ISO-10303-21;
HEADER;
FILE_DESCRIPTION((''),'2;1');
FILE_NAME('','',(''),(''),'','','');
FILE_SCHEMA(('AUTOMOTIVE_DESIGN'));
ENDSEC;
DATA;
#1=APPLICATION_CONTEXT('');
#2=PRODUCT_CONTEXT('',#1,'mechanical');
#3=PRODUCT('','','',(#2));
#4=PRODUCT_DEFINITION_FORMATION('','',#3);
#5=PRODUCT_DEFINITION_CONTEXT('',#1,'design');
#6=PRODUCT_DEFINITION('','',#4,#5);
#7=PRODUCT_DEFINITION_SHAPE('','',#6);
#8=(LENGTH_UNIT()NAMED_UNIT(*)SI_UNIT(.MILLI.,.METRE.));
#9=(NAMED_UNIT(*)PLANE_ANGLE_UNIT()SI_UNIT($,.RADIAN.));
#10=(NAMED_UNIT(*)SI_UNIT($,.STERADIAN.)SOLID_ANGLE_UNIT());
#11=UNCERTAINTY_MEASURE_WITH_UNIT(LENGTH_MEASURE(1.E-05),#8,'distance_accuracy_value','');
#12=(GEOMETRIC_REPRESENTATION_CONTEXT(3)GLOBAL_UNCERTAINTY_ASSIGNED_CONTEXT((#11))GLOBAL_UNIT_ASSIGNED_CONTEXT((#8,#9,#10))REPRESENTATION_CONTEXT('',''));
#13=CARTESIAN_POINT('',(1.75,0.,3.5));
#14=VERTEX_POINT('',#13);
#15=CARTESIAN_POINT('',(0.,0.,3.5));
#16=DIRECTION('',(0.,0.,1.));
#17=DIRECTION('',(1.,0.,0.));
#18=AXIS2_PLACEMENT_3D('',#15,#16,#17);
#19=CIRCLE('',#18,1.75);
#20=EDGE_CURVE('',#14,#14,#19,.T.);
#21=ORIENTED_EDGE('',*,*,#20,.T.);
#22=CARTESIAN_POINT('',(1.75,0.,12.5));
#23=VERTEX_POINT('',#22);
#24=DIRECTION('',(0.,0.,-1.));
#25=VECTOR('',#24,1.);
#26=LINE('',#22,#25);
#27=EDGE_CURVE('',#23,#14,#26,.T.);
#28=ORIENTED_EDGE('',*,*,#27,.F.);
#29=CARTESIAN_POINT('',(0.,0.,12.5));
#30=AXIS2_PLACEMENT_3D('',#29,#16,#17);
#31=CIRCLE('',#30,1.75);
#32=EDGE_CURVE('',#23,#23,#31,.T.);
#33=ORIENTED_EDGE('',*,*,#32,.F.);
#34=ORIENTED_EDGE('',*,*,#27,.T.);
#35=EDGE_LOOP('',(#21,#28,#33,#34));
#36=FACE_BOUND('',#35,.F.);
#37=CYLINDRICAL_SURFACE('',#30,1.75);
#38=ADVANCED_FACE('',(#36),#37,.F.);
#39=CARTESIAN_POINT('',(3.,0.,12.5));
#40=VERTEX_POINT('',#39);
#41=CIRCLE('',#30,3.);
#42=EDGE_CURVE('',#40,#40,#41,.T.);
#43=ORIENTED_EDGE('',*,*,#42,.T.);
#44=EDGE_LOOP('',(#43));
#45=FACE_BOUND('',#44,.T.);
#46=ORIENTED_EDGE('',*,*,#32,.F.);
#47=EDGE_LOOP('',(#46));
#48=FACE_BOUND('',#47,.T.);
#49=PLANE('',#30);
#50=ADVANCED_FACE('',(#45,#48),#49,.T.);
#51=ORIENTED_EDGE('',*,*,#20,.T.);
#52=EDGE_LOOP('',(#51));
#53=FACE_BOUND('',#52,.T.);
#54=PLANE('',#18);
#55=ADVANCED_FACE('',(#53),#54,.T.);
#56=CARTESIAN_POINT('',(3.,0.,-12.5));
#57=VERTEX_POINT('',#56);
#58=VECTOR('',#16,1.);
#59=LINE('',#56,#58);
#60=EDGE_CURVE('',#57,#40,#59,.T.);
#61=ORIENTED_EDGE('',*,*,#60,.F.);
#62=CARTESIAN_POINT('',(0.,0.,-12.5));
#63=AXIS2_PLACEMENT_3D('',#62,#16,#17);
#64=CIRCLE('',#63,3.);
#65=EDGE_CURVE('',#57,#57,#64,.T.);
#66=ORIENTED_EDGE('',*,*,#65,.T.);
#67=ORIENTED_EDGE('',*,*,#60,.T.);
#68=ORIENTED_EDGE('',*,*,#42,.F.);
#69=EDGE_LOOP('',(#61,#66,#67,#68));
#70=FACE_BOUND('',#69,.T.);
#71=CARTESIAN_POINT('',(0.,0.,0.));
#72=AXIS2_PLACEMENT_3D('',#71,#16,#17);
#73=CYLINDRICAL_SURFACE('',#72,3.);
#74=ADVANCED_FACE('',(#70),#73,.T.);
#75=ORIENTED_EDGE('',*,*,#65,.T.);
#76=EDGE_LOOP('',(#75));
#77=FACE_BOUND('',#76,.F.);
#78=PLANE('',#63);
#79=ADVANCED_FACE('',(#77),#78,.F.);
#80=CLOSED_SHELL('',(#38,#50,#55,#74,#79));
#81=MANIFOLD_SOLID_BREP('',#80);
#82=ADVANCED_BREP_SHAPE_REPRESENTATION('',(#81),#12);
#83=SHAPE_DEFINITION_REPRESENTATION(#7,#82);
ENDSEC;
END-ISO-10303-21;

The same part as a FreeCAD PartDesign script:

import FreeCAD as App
import Part
import Sketcher

doc = App.newDocument("Part")
body = doc.addObject("PartDesign::Body", "Body")

sketch1 = body.newObject("Sketcher::SketchObject", "Sketch")
sketch1.AttachmentSupport = (doc.getObject("XY_Plane"), [""])
sketch1.MapMode = "FlatFace"
sketch1.addGeometry(Part.Circle(App.Vector(0, 0, 0), App.Vector(0, 0, 1), 3), False)
sketch1.addConstraint([
    Sketcher.Constraint("Coincident", 0, 3, -1, 1),
    Sketcher.Constraint("Diameter", 0, 6.0),
])
pad1 = body.newObject("PartDesign::Pad", "Pad")
pad1.Profile = sketch1
pad1.Length = 25
pad1.Midplane = True

sketch2 = body.newObject("Sketcher::SketchObject", "Sketch001")
sketch2.AttachmentSupport = (doc.getObject("XY_Plane"), [""])
sketch2.MapMode = "FlatFace"
sketch2.AttachmentOffset = App.Placement(App.Vector(0, 0, 12.5), App.Rotation())
sketch2.addGeometry(Part.Circle(App.Vector(0, 0, 0), App.Vector(0, 0, 1), 1.8), False)
sketch2.addConstraint([
    Sketcher.Constraint("Coincident", 0, 3, -1, 1),
    Sketcher.Constraint("Diameter", 0, 3.5),
])
pocket1 = body.newObject("PartDesign::Pocket", "Pocket")
pocket1.Profile = sketch2
pocket1.Length = 9

doc.recompute()
